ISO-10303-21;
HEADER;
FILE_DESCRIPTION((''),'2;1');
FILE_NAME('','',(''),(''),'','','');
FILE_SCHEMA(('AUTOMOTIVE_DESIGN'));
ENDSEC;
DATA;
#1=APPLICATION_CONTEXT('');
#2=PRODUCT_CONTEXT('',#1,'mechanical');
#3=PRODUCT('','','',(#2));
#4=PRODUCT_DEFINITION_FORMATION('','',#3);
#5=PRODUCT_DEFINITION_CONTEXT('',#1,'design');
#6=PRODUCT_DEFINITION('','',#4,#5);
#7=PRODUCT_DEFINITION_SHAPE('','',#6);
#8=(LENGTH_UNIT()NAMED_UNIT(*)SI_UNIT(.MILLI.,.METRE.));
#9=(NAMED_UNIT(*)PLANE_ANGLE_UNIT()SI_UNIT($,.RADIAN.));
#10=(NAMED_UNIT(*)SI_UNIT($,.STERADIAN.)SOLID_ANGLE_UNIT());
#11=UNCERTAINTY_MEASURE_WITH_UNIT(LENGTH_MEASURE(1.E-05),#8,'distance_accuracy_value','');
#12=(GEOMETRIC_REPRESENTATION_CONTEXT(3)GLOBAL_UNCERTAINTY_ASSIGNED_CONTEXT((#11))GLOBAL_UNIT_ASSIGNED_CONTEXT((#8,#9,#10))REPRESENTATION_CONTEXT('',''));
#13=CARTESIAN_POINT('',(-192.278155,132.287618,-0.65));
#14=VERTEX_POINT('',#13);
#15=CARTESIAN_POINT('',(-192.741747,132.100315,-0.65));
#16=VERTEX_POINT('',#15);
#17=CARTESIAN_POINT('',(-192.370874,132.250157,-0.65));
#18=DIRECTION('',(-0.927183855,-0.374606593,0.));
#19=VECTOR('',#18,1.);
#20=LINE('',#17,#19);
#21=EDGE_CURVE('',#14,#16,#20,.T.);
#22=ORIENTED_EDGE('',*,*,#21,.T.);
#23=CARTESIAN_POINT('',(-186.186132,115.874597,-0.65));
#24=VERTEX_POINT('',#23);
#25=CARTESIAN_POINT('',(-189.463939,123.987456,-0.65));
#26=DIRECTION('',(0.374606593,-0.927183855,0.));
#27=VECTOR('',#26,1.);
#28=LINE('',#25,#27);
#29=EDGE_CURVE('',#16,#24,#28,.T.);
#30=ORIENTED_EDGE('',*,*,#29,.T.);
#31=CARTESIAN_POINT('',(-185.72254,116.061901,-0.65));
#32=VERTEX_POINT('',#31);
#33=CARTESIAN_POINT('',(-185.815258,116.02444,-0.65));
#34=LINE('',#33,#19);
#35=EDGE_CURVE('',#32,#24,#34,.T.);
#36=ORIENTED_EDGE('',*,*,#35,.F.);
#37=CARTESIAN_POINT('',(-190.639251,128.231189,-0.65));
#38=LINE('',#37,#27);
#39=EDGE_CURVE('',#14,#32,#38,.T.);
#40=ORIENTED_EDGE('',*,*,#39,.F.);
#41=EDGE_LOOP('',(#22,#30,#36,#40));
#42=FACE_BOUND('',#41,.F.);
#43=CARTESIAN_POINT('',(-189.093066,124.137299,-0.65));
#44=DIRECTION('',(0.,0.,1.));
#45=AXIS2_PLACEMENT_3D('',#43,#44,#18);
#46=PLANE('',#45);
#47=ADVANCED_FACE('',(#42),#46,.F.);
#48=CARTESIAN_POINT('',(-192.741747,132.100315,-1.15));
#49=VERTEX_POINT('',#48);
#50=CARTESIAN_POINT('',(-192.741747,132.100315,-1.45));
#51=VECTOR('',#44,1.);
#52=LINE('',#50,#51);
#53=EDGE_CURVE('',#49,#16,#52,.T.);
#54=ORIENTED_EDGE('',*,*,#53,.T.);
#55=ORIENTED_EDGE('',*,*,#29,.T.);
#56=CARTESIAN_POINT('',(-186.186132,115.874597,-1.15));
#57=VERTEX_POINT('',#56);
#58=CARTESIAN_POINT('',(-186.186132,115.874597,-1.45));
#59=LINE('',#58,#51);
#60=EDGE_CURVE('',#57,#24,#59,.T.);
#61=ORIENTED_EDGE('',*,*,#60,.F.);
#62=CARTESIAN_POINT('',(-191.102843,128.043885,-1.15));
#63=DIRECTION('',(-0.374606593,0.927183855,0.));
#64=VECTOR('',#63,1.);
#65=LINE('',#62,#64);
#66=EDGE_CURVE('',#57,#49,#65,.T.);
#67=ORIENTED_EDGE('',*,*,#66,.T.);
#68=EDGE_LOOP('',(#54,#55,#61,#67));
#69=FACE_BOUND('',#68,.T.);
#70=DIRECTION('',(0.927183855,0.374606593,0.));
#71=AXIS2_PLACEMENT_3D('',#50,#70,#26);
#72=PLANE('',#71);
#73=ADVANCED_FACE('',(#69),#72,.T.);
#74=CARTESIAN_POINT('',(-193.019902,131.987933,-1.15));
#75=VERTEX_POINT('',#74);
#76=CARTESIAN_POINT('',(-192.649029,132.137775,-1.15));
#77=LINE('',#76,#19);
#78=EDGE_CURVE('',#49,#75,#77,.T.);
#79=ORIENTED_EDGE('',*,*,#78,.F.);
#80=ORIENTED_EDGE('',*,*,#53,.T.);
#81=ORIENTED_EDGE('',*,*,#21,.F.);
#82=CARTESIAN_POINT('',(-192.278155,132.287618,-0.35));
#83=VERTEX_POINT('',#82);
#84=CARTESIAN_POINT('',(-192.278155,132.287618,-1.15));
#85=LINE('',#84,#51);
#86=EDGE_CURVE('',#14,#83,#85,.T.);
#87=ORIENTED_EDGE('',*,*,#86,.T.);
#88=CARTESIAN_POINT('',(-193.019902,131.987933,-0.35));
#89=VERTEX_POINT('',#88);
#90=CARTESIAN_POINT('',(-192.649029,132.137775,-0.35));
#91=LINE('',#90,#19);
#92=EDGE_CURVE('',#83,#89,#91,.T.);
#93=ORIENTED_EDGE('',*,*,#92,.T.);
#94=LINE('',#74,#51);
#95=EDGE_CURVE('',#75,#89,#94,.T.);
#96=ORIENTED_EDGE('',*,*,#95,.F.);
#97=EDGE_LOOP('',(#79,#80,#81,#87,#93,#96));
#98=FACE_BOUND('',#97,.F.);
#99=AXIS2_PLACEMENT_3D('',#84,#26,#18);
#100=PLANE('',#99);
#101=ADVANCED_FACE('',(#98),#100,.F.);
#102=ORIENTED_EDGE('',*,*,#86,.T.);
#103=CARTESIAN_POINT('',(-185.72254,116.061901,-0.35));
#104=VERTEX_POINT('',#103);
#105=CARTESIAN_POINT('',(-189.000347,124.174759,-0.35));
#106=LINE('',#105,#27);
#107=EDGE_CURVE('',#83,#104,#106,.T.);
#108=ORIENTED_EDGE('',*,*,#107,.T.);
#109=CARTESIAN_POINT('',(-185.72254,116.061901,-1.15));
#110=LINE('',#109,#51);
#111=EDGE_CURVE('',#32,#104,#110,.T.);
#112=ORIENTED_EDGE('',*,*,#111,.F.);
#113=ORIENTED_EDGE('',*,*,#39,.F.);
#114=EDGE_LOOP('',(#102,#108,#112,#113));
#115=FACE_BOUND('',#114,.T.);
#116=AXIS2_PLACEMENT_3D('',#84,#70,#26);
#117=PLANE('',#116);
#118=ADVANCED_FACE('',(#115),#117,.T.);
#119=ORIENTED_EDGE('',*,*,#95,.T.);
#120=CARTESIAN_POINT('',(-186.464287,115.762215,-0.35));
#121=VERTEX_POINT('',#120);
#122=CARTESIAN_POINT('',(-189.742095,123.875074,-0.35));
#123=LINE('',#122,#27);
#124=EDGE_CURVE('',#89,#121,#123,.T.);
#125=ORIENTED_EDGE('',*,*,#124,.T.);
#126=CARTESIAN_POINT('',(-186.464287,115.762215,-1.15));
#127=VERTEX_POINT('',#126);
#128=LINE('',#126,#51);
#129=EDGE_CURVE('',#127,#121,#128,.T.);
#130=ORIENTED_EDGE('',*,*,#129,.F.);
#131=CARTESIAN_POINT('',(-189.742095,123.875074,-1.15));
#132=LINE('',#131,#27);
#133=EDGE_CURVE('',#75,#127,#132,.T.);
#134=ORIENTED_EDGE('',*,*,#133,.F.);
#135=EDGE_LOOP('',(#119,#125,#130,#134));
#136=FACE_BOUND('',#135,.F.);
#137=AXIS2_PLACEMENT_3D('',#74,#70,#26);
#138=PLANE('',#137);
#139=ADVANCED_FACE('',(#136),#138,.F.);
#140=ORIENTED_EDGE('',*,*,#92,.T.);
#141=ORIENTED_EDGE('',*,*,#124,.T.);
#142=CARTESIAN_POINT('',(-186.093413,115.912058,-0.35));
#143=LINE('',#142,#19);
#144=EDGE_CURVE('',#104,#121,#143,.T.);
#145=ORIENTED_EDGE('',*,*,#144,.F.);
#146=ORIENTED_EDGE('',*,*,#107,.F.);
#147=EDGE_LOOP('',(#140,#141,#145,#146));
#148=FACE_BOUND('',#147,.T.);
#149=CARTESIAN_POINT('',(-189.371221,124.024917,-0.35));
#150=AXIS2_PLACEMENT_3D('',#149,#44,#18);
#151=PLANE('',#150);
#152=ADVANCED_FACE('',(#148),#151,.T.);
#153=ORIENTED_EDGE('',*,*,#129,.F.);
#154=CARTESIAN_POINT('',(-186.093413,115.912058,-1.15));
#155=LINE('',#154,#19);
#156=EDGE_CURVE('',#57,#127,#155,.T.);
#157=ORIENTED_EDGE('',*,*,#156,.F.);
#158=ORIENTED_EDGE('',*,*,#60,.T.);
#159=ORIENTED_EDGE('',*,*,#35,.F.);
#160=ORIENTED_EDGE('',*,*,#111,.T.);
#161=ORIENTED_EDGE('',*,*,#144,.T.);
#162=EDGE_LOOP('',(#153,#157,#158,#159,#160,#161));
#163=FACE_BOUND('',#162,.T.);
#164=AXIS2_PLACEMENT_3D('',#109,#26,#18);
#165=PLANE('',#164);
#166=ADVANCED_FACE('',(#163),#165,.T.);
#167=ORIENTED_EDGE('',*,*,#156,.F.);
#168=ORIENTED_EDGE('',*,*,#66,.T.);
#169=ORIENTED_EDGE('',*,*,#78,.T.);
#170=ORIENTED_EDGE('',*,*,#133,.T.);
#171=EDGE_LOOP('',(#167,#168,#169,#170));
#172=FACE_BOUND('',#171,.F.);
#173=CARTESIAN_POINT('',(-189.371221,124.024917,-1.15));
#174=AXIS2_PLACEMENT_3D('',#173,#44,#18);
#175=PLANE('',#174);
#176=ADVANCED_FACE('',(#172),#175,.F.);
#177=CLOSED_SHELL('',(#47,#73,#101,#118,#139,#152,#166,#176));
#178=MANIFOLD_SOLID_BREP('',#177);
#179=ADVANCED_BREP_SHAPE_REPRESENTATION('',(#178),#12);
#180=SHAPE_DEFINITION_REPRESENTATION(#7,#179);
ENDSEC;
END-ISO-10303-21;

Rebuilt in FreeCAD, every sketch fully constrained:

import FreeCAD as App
import Part
import Sketcher
from FreeCAD import Vector
Q = App.Units.Quantity

doc = App.newDocument("Part")
params = doc.addObject("Spreadsheet::Sheet", "Params")
for row, (alias, value) in enumerate([
    ("sketch1_width", "0.8 mm"),
    ("sketch1_height", "17.5 mm"),
    ("pad1_length", "0.8 mm"),
    ("sketch2_width", "0.8 mm"),
    ("sketch2_height", "17.5 mm"),
    ("pad2_length", "0.8 mm"),
], start=1):
    params.set(f"A{row}", alias)
    params.set(f"B{row}", "=" + value)
    params.setAlias(f"B{row}", alias)

body = doc.addObject("PartDesign::Body", "Body")

# Sketch on XY plane
sketch1 = body.newObject("Sketcher::SketchObject", "Sketch")
sketch1.AttachmentSupport = (doc.getObject("XY_Plane"), [""])
sketch1.MapMode = "FlatFace"
sketch1.addGeometry(Part.LineSegment(Vector(0, 17.5, 0), Vector(0, 0, 0)), False)
sketch1.addGeometry(Part.LineSegment(Vector(0, 0, 0), Vector(0.8, 0, 0)), False)
sketch1.addGeometry(Part.LineSegment(Vector(0.8, 0, 0), Vector(0.8, 17.5, 0)), False)
sketch1.addGeometry(Part.LineSegment(Vector(0.8, 17.5, 0), Vector(0, 17.5, 0)), False)
sketch1.addConstraint(Sketcher.Constraint("Coincident", 0, 2, 1, 1))
sketch1.addConstraint(Sketcher.Constraint("Coincident", 1, 2, 2, 1))
sketch1.addConstraint(Sketcher.Constraint("Coincident", 2, 2, 3, 1))
sketch1.addConstraint(Sketcher.Constraint("Coincident", 3, 2, 0, 1))
sketch1.addConstraint(Sketcher.Constraint("Vertical", 0))
sketch1.addConstraint(Sketcher.Constraint("Horizontal", 1))
sketch1.addConstraint(Sketcher.Constraint("Vertical", 2))
sketch1.addConstraint(Sketcher.Constraint("Horizontal", 3))
sketch1.addConstraint(Sketcher.Constraint("Coincident", 0, 2, -1, 1))
sketch1.addConstraint(Sketcher.Constraint("DistanceX", 1, 1, 1, 2, Q("0.8 mm")))
sketch1.addConstraint(Sketcher.Constraint("DistanceY", 0, 2, 0, 1, Q("17.5 mm")))
sketch1.setExpression("Constraints[9]", "Params.sketch1_width")
sketch1.setExpression("Constraints[10]", "Params.sketch1_height")
pad1 = body.newObject("PartDesign::Pad", "Pad")
pad1.Profile = sketch1
pad1.setExpression("Length", "Params.pad1_length")
body2 = doc.addObject("PartDesign::Body", "Body001")

# Sketch on XY plane
sketch2 = body2.newObject("Sketcher::SketchObject", "Sketch001")
sketch2.AttachmentSupport = (doc.getObject("XY_Plane001"), [""])
sketch2.MapMode = "FlatFace"
sketch2.AttachmentOffset = App.Placement(Vector(0, 0, 0.3), App.Rotation())
sketch2.addGeometry(Part.LineSegment(Vector(0.3, 17.5, 0), Vector(0.3, 0, 0)), False)
sketch2.addGeometry(Part.LineSegment(Vector(0.3, 0, 0), Vector(1.1, 0, 0)), False)
sketch2.addGeometry(Part.LineSegment(Vector(1.1, 0, 0), Vector(1.1, 17.5, 0)), False)
sketch2.addGeometry(Part.LineSegment(Vector(1.1, 17.5, 0), Vector(0.3, 17.5, 0)), False)
sketch2.addConstraint(Sketcher.Constraint("Coincident", 0, 2, 1, 1))
sketch2.addConstraint(Sketcher.Constraint("Coincident", 1, 2, 2, 1))
sketch2.addConstraint(Sketcher.Constraint("Coincident", 2, 2, 3, 1))
sketch2.addConstraint(Sketcher.Constraint("Coincident", 3, 2, 0, 1))
sketch2.addConstraint(Sketcher.Constraint("Vertical", 0))
sketch2.addConstraint(Sketcher.Constraint("Horizontal", 1))
sketch2.addConstraint(Sketcher.Constraint("Vertical", 2))
sketch2.addConstraint(Sketcher.Constraint("Horizontal", 3))
sketch2.addConstraint(Sketcher.Constraint("PointOnObject", 0, 2, -1))
sketch2.addConstraint(Sketcher.Constraint("DistanceX", 1, 1, 1, 2, Q("0.8 mm")))
sketch2.addConstraint(Sketcher.Constraint("DistanceY", 0, 2, 0, 1, Q("17.5 mm")))
sketch2.addConstraint(Sketcher.Constraint("DistanceX", -1, 1, 0, 2, Q("0.3 mm")))
sketch2.setExpression("Constraints[9]", "Params.sketch2_width")
sketch2.setExpression("Constraints[10]", "Params.sketch2_height")
pad2 = body2.newObject("PartDesign::Pad", "Pad001")
pad2.Profile = sketch2
pad2.setExpression("Length", "Params.pad2_length")
doc.recompute()

boolean = body2.newObject("PartDesign::Boolean", "Boolean")
boolean.Type = "Cut"
boolean.addObjects([body])
body3 = doc.addObject("PartDesign::Body", "Body002")
doc.recompute()

body2.Placement = App.Placement(Vector(-192, 132.4, -1.45), App.Rotation(Vector(0, 0, 1), 202))
boolean2 = body3.newObject("PartDesign::Boolean", "Boolean001")
boolean2.Type = "Fuse"
boolean2.addObjects([body2])

doc.recompute()
